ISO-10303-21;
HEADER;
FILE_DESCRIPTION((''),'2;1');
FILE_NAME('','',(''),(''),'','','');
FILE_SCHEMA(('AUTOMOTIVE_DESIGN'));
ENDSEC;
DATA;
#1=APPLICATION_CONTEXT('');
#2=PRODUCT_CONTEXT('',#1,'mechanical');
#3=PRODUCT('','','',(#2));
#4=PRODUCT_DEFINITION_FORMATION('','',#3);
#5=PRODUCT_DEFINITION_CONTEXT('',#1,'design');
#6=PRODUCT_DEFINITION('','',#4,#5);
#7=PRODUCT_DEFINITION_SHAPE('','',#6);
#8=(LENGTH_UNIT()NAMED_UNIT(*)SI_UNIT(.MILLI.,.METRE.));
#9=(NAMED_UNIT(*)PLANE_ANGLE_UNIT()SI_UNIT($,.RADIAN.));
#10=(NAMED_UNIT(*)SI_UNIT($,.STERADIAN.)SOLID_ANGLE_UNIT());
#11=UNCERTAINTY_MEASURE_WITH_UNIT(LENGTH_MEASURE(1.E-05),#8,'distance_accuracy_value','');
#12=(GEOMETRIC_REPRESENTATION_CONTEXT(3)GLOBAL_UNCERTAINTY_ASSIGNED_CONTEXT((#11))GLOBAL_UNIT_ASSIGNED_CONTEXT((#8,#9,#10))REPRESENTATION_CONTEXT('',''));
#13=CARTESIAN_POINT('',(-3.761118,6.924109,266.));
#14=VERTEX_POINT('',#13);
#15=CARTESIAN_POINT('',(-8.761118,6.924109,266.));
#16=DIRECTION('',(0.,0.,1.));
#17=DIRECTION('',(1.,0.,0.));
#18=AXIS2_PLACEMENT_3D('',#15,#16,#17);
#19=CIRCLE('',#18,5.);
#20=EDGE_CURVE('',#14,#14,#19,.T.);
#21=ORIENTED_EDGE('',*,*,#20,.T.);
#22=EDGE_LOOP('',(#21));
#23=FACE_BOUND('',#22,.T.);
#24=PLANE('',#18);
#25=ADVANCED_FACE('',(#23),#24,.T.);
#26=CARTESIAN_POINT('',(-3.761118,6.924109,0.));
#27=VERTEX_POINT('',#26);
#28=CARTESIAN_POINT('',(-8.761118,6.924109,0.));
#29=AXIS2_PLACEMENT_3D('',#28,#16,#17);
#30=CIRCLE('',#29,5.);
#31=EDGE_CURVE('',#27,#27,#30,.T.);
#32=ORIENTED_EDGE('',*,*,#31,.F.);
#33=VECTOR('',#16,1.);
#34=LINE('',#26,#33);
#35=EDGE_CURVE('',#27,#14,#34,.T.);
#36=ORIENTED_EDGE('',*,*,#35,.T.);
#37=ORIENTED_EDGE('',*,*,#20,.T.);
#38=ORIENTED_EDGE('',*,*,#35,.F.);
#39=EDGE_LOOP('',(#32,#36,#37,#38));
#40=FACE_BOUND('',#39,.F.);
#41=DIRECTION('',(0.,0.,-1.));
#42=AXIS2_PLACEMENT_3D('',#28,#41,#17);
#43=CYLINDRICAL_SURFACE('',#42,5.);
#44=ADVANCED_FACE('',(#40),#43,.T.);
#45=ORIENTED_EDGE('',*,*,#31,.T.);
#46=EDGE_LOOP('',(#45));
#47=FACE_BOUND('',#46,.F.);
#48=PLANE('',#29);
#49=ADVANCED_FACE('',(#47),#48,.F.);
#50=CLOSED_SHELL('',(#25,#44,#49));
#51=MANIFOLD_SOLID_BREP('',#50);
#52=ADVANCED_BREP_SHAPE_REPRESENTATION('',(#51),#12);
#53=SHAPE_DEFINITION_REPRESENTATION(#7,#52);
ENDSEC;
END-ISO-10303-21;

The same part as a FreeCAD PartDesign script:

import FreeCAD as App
import Part
import Sketcher

V = App.Vector
Q = App.Units.Quantity

doc = App.newDocument("Part")
body = doc.addObject("PartDesign::Body", "Body")

# Sketch on XY plane
sketch1 = body.newObject("Sketcher::SketchObject", "Sketch")
sketch1.AttachmentSupport = (doc.getObject("XY_Plane"), [""])
sketch1.MapMode = "FlatFace"
sketch1.addGeometry(Part.Circle(V(-8.761118, 6.924109, 0), V(0, 0, 1), 5), False)
sketch1.addConstraint([
    Sketcher.Constraint("Diameter", 0, Q("10 mm")),
    Sketcher.Constraint("DistanceY", -1, 1, 0, 3, Q("6.924109 mm")),
    Sketcher.Constraint("DistanceX", 0, 3, -1, 1, Q("8.761118 mm")),
])
pad1 = body.newObject("PartDesign::Pad", "Pad")
pad1.Profile = sketch1
pad1.Length = 266

doc.recompute()
